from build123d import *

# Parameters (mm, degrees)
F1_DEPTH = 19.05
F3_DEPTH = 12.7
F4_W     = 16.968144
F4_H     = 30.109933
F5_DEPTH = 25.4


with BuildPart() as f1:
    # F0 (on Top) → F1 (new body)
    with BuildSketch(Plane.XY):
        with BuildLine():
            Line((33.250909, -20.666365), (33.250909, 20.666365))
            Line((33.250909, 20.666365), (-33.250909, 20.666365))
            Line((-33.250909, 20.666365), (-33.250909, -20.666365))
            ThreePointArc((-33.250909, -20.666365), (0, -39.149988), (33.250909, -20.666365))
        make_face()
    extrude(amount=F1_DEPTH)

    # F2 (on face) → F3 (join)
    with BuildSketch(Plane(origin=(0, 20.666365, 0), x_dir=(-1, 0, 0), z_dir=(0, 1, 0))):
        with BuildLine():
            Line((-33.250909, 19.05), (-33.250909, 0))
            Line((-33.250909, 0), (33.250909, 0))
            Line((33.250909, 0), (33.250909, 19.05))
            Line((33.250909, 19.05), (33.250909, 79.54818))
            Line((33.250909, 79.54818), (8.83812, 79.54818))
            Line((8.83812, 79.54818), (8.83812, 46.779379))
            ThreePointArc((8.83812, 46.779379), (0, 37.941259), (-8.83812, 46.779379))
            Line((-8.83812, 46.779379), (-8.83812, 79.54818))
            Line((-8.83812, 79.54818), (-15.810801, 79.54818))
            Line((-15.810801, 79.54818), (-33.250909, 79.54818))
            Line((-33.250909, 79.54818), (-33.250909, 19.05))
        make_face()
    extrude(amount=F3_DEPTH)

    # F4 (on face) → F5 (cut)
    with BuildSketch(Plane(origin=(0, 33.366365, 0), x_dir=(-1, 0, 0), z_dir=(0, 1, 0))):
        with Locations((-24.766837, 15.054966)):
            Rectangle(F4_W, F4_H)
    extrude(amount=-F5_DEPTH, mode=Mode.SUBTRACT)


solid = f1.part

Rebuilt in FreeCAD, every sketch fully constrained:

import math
import FreeCAD as App
import Part
import Sketcher
from FreeCAD import Vector
Q = App.Units.Quantity


def add_polygon(sketch, points):
    """Adds a closed chain of lines whose ends are joined by coincident constraints."""
    first, n = sketch.GeometryCount, len(points)
    for a, b in zip(points, points[1:] + points[:1]):
        sketch.addGeometry(Part.LineSegment(App.Vector(*a, 0), App.Vector(*b, 0)), False)
    for i in range(n):
        sketch.addConstraint(Sketcher.Constraint("Coincident", first + i, 2, first + (i + 1) % n, 1))

doc = App.newDocument("Part")
params = doc.addObject("Spreadsheet::Sheet", "Params")
for row, (alias, value) in enumerate([
    ("pad1_length", "0.75 in"),
    ("pad2_length", "0.5 in"),
    ("pocket1_length", "1 in"),
], start=1):
    params.set(f"A{row}", alias)
    params.set(f"B{row}", "=" + value)
    params.setAlias(f"B{row}", alias)

body = doc.addObject("PartDesign::Body", "Body")

sketch1 = body.newObject("Sketcher::SketchObject", "Sketch")
sketch1.AttachmentSupport = (doc.getObject("XY_Plane"), [""])
sketch1.MapMode = "FlatFace"
sketch1.addGeometry(Part.LineSegment(Vector(33, -21, 0), Vector(33, 21, 0)), False)
sketch1.addGeometry(Part.LineSegment(Vector(33, 21, 0), Vector(-33, 21, 0)), False)
sketch1.addGeometry(Part.LineSegment(Vector(-33, 21, 0), Vector(-33, -21, 0)), False)
sketch1.addGeometry(Part.ArcOfCircle(Part.Circle(Vector(0, 0, 0), Vector(0, 0, 1), 39), math.radians(-148), math.radians(-32)), False)
sketch1.addConstraint(Sketcher.Constraint("Coincident", 0, 2, 1, 1))
sketch1.addConstraint(Sketcher.Constraint("Coincident", 1, 2, 2, 1))
sketch1.addConstraint(Sketcher.Constraint("Coincident", 2, 2, 3, 1))
sketch1.addConstraint(Sketcher.Constraint("Coincident", 3, 2, 0, 1))
sketch1.addConstraint(Sketcher.Constraint("Vertical", 0))
sketch1.addConstraint(Sketcher.Constraint("Horizontal", 1))
sketch1.addConstraint(Sketcher.Constraint("Vertical", 2))
sketch1.addConstraint(Sketcher.Constraint("Coincident", 3, 3, -1, 1))
sketch1.addConstraint(Sketcher.Constraint("Symmetric", 0, 2, 2, 2, -1, 1))
sketch1.addConstraint(Sketcher.Constraint("Radius", 3, Q("39.149989 mm")))
sketch1.addConstraint(Sketcher.Constraint("DistanceX", 1, 2, 1, 1, Q("66.501818 mm")))
pad1 = body.newObject("PartDesign::Pad", "Pad")
pad1.Profile = sketch1
pad1.setExpression("Length", "Params.pad1_length")

sketch2 = body.newObject("Sketcher::SketchObject", "Sketch001")
sketch2.AttachmentSupport = (doc.getObject("XZ_Plane"), [""])
sketch2.MapMode = "FlatFace"
sketch2.AttachmentOffset = App.Placement(Vector(0, 0, -20.666365), App.Rotation())
sketch2.addGeometry(Part.LineSegment(Vector(33, 0, 0), Vector(-33, 0, 0)), False)
sketch2.addGeometry(Part.LineSegment(Vector(-33, 0, 0), Vector(-33, 80, 0)), False)
sketch2.addGeometry(Part.LineSegment(Vector(-33, 80, 0), Vector(-9, 80, 0)), False)
sketch2.addGeometry(Part.LineSegment(Vector(-9, 80, 0), Vector(-9, 47, 0)), False)
sketch2.addGeometry(Part.ArcOfCircle(Part.Circle(Vector(0, 47, 0), Vector(0, 0, 1), 9), math.radians(180), math.radians(360)), False)
sketch2.addGeometry(Part.LineSegment(Vector(9, 47, 0), Vector(9, 80, 0)), False)
sketch2.addGeometry(Part.LineSegment(Vector(9, 80, 0), Vector(33, 80, 0)), False)
sketch2.addGeometry(Part.LineSegment(Vector(33, 80, 0), Vector(33, 0, 0)), False)
sketch2.addConstraint(Sketcher.Constraint("Coincident", 0, 2, 1, 1))
sketch2.addConstraint(Sketcher.Constraint("Coincident", 1, 2, 2, 1))
sketch2.addConstraint(Sketcher.Constraint("Coincident", 2, 2, 3, 1))
sketch2.addConstraint(Sketcher.Constraint("Tangent", 3, 2, 4, 1))
sketch2.addConstraint(Sketcher.Constraint("Tangent", 4, 2, 5, 1))
sketch2.addConstraint(Sketcher.Constraint("Coincident", 5, 2, 6, 1))
sketch2.addConstraint(Sketcher.Constraint("Coincident", 6, 2, 7, 1))
sketch2.addConstraint(Sketcher.Constraint("Coincident", 7, 2, 0, 1))
sketch2.addConstraint(Sketcher.Constraint("Horizontal", 0))
sketch2.addConstraint(Sketcher.Constraint("Vertical", 1))
sketch2.addConstraint(Sketcher.Constraint("Horizontal", 2))
sketch2.addConstraint(Sketcher.Constraint("Vertical", 3))
sketch2.addConstraint(Sketcher.Constraint("Vertical", 5))
sketch2.addConstraint(Sketcher.Constraint("Horizontal", 6))
sketch2.addConstraint(Sketcher.Constraint("Vertical", 7))
sketch2.addConstraint(Sketcher.Constraint("Symmetric", 0, 2, 7, 2, -1, 1))
sketch2.addConstraint(Sketcher.Constraint("Symmetric", 2, 2, 5, 2, -2))
sketch2.addConstraint(Sketcher.Constraint("Radius", 4, Q("8.83812 mm")))
sketch2.addConstraint(Sketcher.Constraint("DistanceY", 3, 2, 3, 1, Q("32.768801 mm")))
sketch2.addConstraint(Sketcher.Constraint("DistanceX", 0, 2, 0, 1, Q("66.501818 mm")))
sketch2.addConstraint(Sketcher.Constraint("DistanceY", 1, 1, 1, 2, Q("79.54818 mm")))
pad2 = body.newObject("PartDesign::Pad", "Pad001")
pad2.Profile = sketch2
pad2.setExpression("Length", "Params.pad2_length")
pad2.Reversed = True

sketch3 = body.newObject("Sketcher::SketchObject", "Sketch002")
sketch3.AttachmentSupport = (doc.getObject("XZ_Plane"), [""])
sketch3.MapMode = "FlatFace"
sketch3.AttachmentOffset = App.Placement(Vector(0, 0, -33.366365), App.Rotation())
add_polygon(sketch3, [(33, 30), (33, 0), (16, 0), (16, 30)])
sketch3.addConstraint(Sketcher.Constraint("Vertical", 0))
sketch3.addConstraint(Sketcher.Constraint("Horizontal", 1))
sketch3.addConstraint(Sketcher.Constraint("Vertical", 2))
sketch3.addConstraint(Sketcher.Constraint("Horizontal", 3))
sketch3.addConstraint(Sketcher.Constraint("PointOnObject", 0, 2, -1))
sketch3.addConstraint(Sketcher.Constraint("DistanceX", 1, 2, 1, 1, Q("16.968144 mm")))
sketch3.addConstraint(Sketcher.Constraint("DistanceY", 0, 2, 0, 1, Q("30.109933 mm")))
sketch3.addConstraint(Sketcher.Constraint("DistanceX", -1, 1, 0, 2, Q("33.250909 mm")))
pocket1 = body.newObject("PartDesign::Pocket", "Pocket")
pocket1.Profile = sketch3
pocket1.setExpression("Length", "Params.pocket1_length")
pocket1.Reversed = True

doc.recompute()
